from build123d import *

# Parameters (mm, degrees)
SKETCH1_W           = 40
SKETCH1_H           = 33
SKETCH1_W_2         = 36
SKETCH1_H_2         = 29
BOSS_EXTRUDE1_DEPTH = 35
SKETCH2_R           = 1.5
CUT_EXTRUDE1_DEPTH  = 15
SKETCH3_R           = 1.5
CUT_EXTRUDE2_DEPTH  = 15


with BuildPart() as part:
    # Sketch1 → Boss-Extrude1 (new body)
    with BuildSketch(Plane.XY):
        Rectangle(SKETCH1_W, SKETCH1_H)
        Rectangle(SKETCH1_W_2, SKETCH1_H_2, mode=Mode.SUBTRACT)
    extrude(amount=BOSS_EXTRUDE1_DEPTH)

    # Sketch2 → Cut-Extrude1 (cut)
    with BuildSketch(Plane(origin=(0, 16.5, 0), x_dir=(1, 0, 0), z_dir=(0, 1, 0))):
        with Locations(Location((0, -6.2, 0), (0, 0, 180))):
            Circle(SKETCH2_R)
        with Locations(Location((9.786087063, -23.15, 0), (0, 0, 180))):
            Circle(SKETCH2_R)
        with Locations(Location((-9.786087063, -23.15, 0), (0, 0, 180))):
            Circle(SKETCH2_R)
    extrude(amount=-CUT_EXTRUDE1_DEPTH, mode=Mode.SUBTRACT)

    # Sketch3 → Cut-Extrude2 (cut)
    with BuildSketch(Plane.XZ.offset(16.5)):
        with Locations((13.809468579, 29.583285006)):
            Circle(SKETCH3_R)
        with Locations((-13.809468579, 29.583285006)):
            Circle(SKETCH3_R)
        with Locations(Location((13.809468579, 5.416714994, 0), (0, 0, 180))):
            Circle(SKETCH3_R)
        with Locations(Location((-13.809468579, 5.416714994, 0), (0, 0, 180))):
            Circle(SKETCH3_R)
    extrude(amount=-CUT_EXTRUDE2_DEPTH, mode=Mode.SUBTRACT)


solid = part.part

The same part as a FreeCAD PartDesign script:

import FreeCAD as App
import Part
import Sketcher
from FreeCAD import Vector

doc = App.newDocument("Part")
body = doc.addObject("PartDesign::Body", "Body")

sketch1 = doc.addObject("Sketcher::SketchObject", "Sketch")
body.addObject(sketch1)
sketch1.AttachmentSupport = (doc.XY_Plane, [""])
sketch1.MapMode = "FlatFace"
sketch1.addGeometry([
    Part.LineSegment(Vector(-20, 16.5, 0), Vector(-20, -16.5, 0)),
    Part.LineSegment(Vector(-20, -16.5, 0), Vector(20, -16.5, 0)),
    Part.LineSegment(Vector(20, -16.5, 0), Vector(20, 16.5, 0)),
    Part.LineSegment(Vector(20, 16.5, 0), Vector(-20, 16.5, 0)),
    Part.LineSegment(Vector(18, -14.5, 0), Vector(-18, -14.5, 0)),
    Part.LineSegment(Vector(-18, -14.5, 0), Vector(-18, 14.5, 0)),
    Part.LineSegment(Vector(-18, 14.5, 0), Vector(18, 14.5, 0)),
    Part.LineSegment(Vector(18, 14.5, 0), Vector(18, -14.5, 0)),
], False)
sketch1.addConstraint([
    Sketcher.Constraint("Coincident", 0, 2, 1, 1),
    Sketcher.Constraint("Coincident", 1, 2, 2, 1),
    Sketcher.Constraint("Coincident", 2, 2, 3, 1),
    Sketcher.Constraint("Coincident", 3, 2, 0, 1),
    Sketcher.Constraint("Coincident", 4, 2, 5, 1),
    Sketcher.Constraint("Coincident", 5, 2, 6, 1),
    Sketcher.Constraint("Coincident", 6, 2, 7, 1),
    Sketcher.Constraint("Coincident", 7, 2, 4, 1),
    Sketcher.Constraint("Vertical", 0),
    Sketcher.Constraint("Horizontal", 1),
    Sketcher.Constraint("Vertical", 2),
    Sketcher.Constraint("Horizontal", 3),
    Sketcher.Constraint("Horizontal", 4),
    Sketcher.Constraint("Vertical", 5),
    Sketcher.Constraint("Horizontal", 6),
    Sketcher.Constraint("Vertical", 7),
    Sketcher.Constraint("Symmetric", 0, 2, 2, 2, -1, 1),
    Sketcher.Constraint("Symmetric", 4, 2, 6, 2, -1, 1),
    Sketcher.Constraint("DistanceX", 1, 1, 1, 2, 40.0),
    Sketcher.Constraint("DistanceX", 4, 2, 4, 1, 36.0),
    Sketcher.Constraint("DistanceY", 0, 2, 0, 1, 33.0),
    Sketcher.Constraint("DistanceY", 5, 1, 5, 2, 29.0),
])
pad1 = doc.addObject("PartDesign::Pad", "Pad")
body.addObject(pad1)
pad1.Profile = sketch1
pad1.Length = 35

sketch2 = doc.addObject("Sketcher::SketchObject", "Sketch001")
body.addObject(sketch2)
sketch2.AttachmentSupport = (doc.XZ_Plane, [""])
sketch2.MapMode = "FlatFace"
sketch2.AttachmentOffset = App.Placement(Vector(0, 0, -16.5), App.Rotation())
sketch2.addGeometry([
    Part.Circle(Vector(0, 6.2, 0), Vector(0, 0, 1), 1.5),
    Part.Circle(Vector(9.786087, 23.15, 0), Vector(0, 0, 1), 1.5),
    Part.Circle(Vector(-9.786087, 23.15, 0), Vector(0, 0, 1), 1.5),
], False)
sketch2.addConstraint([
    Sketcher.Constraint("Equal", 0, 1),
    Sketcher.Constraint("Equal", 1, 2),
    Sketcher.Constraint("Symmetric", 1, 3, 2, 3, -2),
    Sketcher.Constraint("PointOnObject", 0, 3, -2),
    Sketcher.Constraint("Diameter", 0, 3.0),
    Sketcher.Constraint("DistanceY", -1, 1, 0, 3, 6.2),
    Sketcher.Constraint("DistanceY", -1, 1, 1, 3, 23.15),
    Sketcher.Constraint("DistanceX", -1, 1, 1, 3, 9.786087),
])
pocket1 = doc.addObject("PartDesign::Pocket", "Pocket")
body.addObject(pocket1)
pocket1.Profile = sketch2
pocket1.Length = 15
pocket1.Reversed = True

sketch3 = doc.addObject("Sketcher::SketchObject", "Sketch002")
body.addObject(sketch3)
sketch3.AttachmentSupport = (doc.XZ_Plane, [""])
sketch3.MapMode = "FlatFace"
sketch3.AttachmentOffset = App.Placement(Vector(0, 0, 16.5), App.Rotation())
sketch3.addGeometry([
    Part.Circle(Vector(13.809469, 29.583285, 0), Vector(0, 0, 1), 1.5),
    Part.Circle(Vector(-13.809469, 29.583285, 0), Vector(0, 0, 1), 1.5),
    Part.Circle(Vector(13.809469, 5.416715, 0), Vector(0, 0, 1), 1.5),
    Part.Circle(Vector(-13.809469, 5.416715, 0), Vector(0, 0, 1), 1.5),
], False)
sketch3.addConstraint([
    Sketcher.Constraint("Equal", 0, 1),
    Sketcher.Constraint("Equal", 1, 2),
    Sketcher.Constraint("Equal", 2, 3),
    Sketcher.Constraint("Symmetric", 0, 3, 1, 3, -2),
    Sketcher.Constraint("Symmetric", 2, 3, 3, 3, -2),
    Sketcher.Constraint("Vertical", 0, 3, 2, 3),
    Sketcher.Constraint("Diameter", 0, 3.0),
    Sketcher.Constraint("DistanceX", -1, 1, 0, 3, 13.809469),
    Sketcher.Constraint("DistanceY", 2, 3, 0, 3, 24.16657),
    Sketcher.Constraint("DistanceY", -1, 1, 0, 3, 29.583285),
])
pocket2 = doc.addObject("PartDesign::Pocket", "Pocket001")
body.addObject(pocket2)
pocket2.Profile = sketch3
pocket2.Length = 15

doc.recompute()
